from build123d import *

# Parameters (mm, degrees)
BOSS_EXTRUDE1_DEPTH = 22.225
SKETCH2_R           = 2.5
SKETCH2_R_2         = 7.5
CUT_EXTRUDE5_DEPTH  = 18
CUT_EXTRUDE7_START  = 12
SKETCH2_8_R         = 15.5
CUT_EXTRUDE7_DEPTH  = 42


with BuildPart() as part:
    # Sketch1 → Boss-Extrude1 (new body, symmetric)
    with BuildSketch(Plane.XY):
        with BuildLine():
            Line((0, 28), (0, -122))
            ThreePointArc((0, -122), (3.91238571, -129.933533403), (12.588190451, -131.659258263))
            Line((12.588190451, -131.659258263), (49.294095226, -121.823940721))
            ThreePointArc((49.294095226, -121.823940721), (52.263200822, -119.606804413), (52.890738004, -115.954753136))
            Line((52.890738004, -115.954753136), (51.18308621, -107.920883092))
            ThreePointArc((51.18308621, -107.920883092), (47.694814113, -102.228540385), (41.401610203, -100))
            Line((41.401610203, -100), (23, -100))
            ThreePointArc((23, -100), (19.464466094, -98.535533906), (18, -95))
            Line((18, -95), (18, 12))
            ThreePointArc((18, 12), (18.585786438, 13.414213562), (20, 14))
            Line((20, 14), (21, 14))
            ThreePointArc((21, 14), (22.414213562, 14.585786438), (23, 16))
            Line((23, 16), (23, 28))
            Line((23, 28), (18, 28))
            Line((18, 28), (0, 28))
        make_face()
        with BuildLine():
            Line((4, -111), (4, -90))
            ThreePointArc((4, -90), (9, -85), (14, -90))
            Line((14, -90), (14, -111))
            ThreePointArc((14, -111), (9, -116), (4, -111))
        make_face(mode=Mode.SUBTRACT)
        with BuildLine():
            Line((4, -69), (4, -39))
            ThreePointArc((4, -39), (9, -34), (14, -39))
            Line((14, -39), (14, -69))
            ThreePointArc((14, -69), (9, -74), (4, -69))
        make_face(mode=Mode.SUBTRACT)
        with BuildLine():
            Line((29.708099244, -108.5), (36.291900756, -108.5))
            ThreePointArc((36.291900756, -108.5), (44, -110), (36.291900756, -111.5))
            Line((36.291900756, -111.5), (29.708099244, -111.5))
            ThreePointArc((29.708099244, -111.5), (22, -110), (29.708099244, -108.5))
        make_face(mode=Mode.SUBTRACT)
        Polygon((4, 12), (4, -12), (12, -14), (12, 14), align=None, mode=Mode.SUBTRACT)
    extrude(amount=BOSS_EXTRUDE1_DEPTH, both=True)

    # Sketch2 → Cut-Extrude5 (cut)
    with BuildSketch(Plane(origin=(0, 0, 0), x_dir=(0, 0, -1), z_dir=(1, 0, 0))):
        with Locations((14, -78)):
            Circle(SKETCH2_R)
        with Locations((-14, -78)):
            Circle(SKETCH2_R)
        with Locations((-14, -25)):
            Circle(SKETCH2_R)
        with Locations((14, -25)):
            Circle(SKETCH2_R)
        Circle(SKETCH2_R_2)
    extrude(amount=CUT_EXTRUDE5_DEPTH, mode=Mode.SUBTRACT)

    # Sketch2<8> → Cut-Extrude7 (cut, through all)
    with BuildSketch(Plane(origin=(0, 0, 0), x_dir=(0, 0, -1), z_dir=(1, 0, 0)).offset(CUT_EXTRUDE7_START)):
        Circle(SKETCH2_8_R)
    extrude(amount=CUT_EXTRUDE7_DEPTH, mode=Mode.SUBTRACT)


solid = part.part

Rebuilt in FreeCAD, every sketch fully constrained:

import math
import FreeCAD as App
import Part
import Sketcher
Q = App.Units.Quantity


def add_polygon(sketch, points):
    """Adds a closed chain of lines whose ends are joined by coincident constraints."""
    first, n = sketch.GeometryCount, len(points)
    for a, b in zip(points, points[1:] + points[:1]):
        sketch.addGeometry(Part.LineSegment(App.Vector(*a, 0), App.Vector(*b, 0)), False)
    for i in range(n):
        sketch.addConstraint(Sketcher.Constraint("Coincident", first + i, 2, first + (i + 1) % n, 1))

doc = App.newDocument("Part")
body = doc.addObject("PartDesign::Body", "Body")

# Sketch on XY plane
sketch1 = body.newObject("Sketcher::SketchObject", "Sketch")
sketch1.AttachmentSupport = (doc.getObject("XY_Plane"), [""])
sketch1.MapMode = "FlatFace"
sketch1.addGeometry(Part.LineSegment(App.Vector(0, 28, 0), App.Vector(0, -122, 0)), False)  # 0
sketch1.addGeometry(Part.ArcOfCircle(Part.Circle(App.Vector(10, -122, 0), App.Vector(0, 0, 1), 10), math.radians(180), math.radians(285)), False)  # 1
sketch1.addGeometry(Part.LineSegment(App.Vector(12.6, -131.7, 0), App.Vector(49.3, -121.8, 0)), False)  # 2
sketch1.addGeometry(Part.ArcOfCircle(Part.Circle(App.Vector(48, -117, 0), App.Vector(0, 0, 1), 5), math.radians(-75), math.radians(12)), False)  # 3
sketch1.addGeometry(Part.LineSegment(App.Vector(52.9, -116, 0), App.Vector(51.2, -107.9, 0)), False)  # 4
sketch1.addGeometry(Part.ArcOfCircle(Part.Circle(App.Vector(41.4, -110, 0), App.Vector(0, 0, 1), 10), math.radians(12), math.radians(90)), False)  # 5
sketch1.addGeometry(Part.LineSegment(App.Vector(41.4, -100, 0), App.Vector(23, -100, 0)), False)  # 6
sketch1.addGeometry(Part.ArcOfCircle(Part.Circle(App.Vector(23, -95, 0), App.Vector(0, 0, 1), 5), math.radians(180), math.radians(270)), False)  # 7
sketch1.addGeometry(Part.LineSegment(App.Vector(18, -95, 0), App.Vector(18, 12, 0)), False)  # 8
sketch1.addGeometry(Part.ArcOfCircle(Part.Circle(App.Vector(20, 12, 0), App.Vector(0, 0, 1), 2), math.radians(90), math.radians(180)), False)  # 9
sketch1.addGeometry(Part.LineSegment(App.Vector(20, 14, 0), App.Vector(21, 14, 0)), False)  # 10
sketch1.addGeometry(Part.ArcOfCircle(Part.Circle(App.Vector(21, 16, 0), App.Vector(0, 0, 1), 2), math.radians(-90), math.radians(0)), False)  # 11
sketch1.addGeometry(Part.LineSegment(App.Vector(23, 16, 0), App.Vector(23, 28, 0)), False)  # 12
sketch1.addGeometry(Part.LineSegment(App.Vector(23, 28, 0), App.Vector(0, 28, 0)), False)  # 13
sketch1.addGeometry(Part.ArcOfCircle(Part.Circle(App.Vector(9, -111, 0), App.Vector(0, 0, 1), 5), math.radians(180), math.radians(360)), False)  # 14
sketch1.addGeometry(Part.LineSegment(App.Vector(4, -111, 0), App.Vector(4, -90, 0)), False)  # 15
sketch1.addGeometry(Part.ArcOfCircle(Part.Circle(App.Vector(9, -90, 0), App.Vector(0, 0, 1), 5), math.radians(0), math.radians(180)), False)  # 16
sketch1.addGeometry(Part.LineSegment(App.Vector(14, -90, 0), App.Vector(14, -111, 0)), False)  # 17
sketch1.addGeometry(Part.ArcOfCircle(Part.Circle(App.Vector(9, -69, 0), App.Vector(0, 0, 1), 5), math.radians(180), math.radians(360)), False)  # 18
sketch1.addGeometry(Part.LineSegment(App.Vector(4, -69, 0), App.Vector(4, -39, 0)), False)  # 19
sketch1.addGeometry(Part.ArcOfCircle(Part.Circle(App.Vector(9, -39, 0), App.Vector(0, 0, 1), 5), math.radians(0), math.radians(180)), False)  # 20
sketch1.addGeometry(Part.LineSegment(App.Vector(14, -39, 0), App.Vector(14, -69, 0)), False)  # 21
sketch1.addGeometry(Part.ArcOfCircle(Part.Circle(App.Vector(26, -110, 0), App.Vector(0, 0, 1), 4), math.radians(22), math.radians(338)), False)  # 22
sketch1.addGeometry(Part.LineSegment(App.Vector(29.7, -108.5, 0), App.Vector(36.3, -108.5, 0)), False)  # 23
sketch1.addGeometry(Part.ArcOfCircle(Part.Circle(App.Vector(40, -110, 0), App.Vector(0, 0, 1), 4), math.radians(-158), math.radians(158)), False)  # 24
sketch1.addGeometry(Part.LineSegment(App.Vector(36.3, -111.5, 0), App.Vector(29.7, -111.5, 0)), False)  # 25
add_polygon(sketch1, [(4, -12), (4, 12), (12, 14), (12, -14)])  # lines 26-29
sketch1.addConstraint([
    Sketcher.Constraint("Tangent", 0, 2, 1, 1),
    Sketcher.Constraint("Tangent", 1, 2, 2, 1),
    Sketcher.Constraint("Tangent", 2, 2, 3, 1),
    Sketcher.Constraint("Tangent", 3, 2, 4, 1),
    Sketcher.Constraint("Tangent", 4, 2, 5, 1),
    Sketcher.Constraint("Tangent", 5, 2, 6, 1),
    Sketcher.Constraint("Tangent", 6, 2, 7, 2),
    Sketcher.Constraint("Tangent", 7, 1, 8, 1),
    Sketcher.Constraint("Tangent", 8, 2, 9, 2),
    Sketcher.Constraint("Tangent", 9, 1, 10, 1),
    Sketcher.Constraint("Tangent", 10, 2, 11, 1),
    Sketcher.Constraint("Tangent", 11, 2, 12, 1),
    Sketcher.Constraint("Coincident", 12, 2, 13, 1),
    Sketcher.Constraint("Coincident", 13, 2, 0, 1),
    Sketcher.Constraint("Tangent", 14, 1, 15, 1),
    Sketcher.Constraint("Tangent", 15, 2, 16, 2),
    Sketcher.Constraint("Tangent", 16, 1, 17, 1),
    Sketcher.Constraint("Tangent", 17, 2, 14, 2),
    Sketcher.Constraint("Tangent", 18, 1, 19, 1),
    Sketcher.Constraint("Tangent", 19, 2, 20, 2),
    Sketcher.Constraint("Tangent", 20, 1, 21, 1),
    Sketcher.Constraint("Tangent", 21, 2, 18, 2),
    Sketcher.Constraint("Coincident", 22, 1, 23, 1),
    Sketcher.Constraint("Coincident", 23, 2, 24, 2),
    Sketcher.Constraint("Coincident", 24, 1, 25, 1),
    Sketcher.Constraint("Coincident", 25, 2, 22, 2),
    Sketcher.Constraint("Vertical", 0),
    Sketcher.Constraint("Horizontal", 6),
    Sketcher.Constraint("Vertical", 8),
    Sketcher.Constraint("Horizontal", 10),
    Sketcher.Constraint("Vertical", 12),
    Sketcher.Constraint("Horizontal", 13),
    Sketcher.Constraint("Vertical", 15),
    Sketcher.Constraint("Vertical", 17),
    Sketcher.Constraint("Vertical", 19),
    Sketcher.Constraint("Vertical", 21),
    Sketcher.Constraint("Horizontal", 23),
    Sketcher.Constraint("Horizontal", 25),
    Sketcher.Constraint("Vertical", 26),
    Sketcher.Constraint("Vertical", 28),
    Sketcher.Constraint("Equal", 1, 5),
    Sketcher.Constraint("Equal", 3, 7),
    Sketcher.Constraint("Equal", 9, 11),
    Sketcher.Constraint("Equal", 7, 14),
    Sketcher.Constraint("Equal", 16, 18),
    Sketcher.Constraint("Equal", 22, 24),
    Sketcher.Constraint("PointOnObject", 0, 2, -2),
    Sketcher.Constraint("Horizontal", 5, 3, 22, 3),
    Sketcher.Constraint("Horizontal", 22, 3, 24, 3),
    Sketcher.Constraint("Horizontal", 8, 2, 26, 2),
    Sketcher.Constraint("Horizontal", 10, 2, 27, 2),
    Sketcher.Constraint("Vertical", 16, 3, 18, 3),
    Sketcher.Constraint("Vertical", 6, 2, 11, 2),
    Sketcher.Constraint("Vertical", 23, 2, 24, 1),
    Sketcher.Constraint("Vertical", 19, 2, 26, 2),
    Sketcher.Constraint("Equal", 27, 29),
    Sketcher.Constraint("Radius", 1, 10.0),
    Sketcher.Constraint("Radius", 3, 5.0),
    Sketcher.Constraint("Radius", 9, 2.0),
    Sketcher.Constraint("Radius", 22, 4.0),
    Sketcher.Constraint("DistanceX", 13, 2, 13, 1, 23.0),
    Sketcher.Constraint("DistanceY", 0, 2, 0, 1, 150.0),
    Sketcher.Constraint("DistanceY", 8, 1, 8, 2, 107.0),
    Sketcher.Constraint("DistanceY", 12, 1, 12, 2, 12.0),
    Sketcher.Constraint("DistanceY", 15, 1, 15, 2, 21.0),
    Sketcher.Constraint("DistanceY", 19, 1, 19, 2, 30.0),
    Sketcher.Constraint("DistanceY", 26, 1, 26, 2, 24.0),
    Sketcher.Constraint("Angle", 2, Q("15 deg")),
    Sketcher.Constraint("Angle", 4, Q("102 deg")),
    Sketcher.Constraint("DistanceY", 1, 3, -1, 1, 122.0),
    Sketcher.Constraint("DistanceX", -1, 1, 3, 3, 48.0),
    Sketcher.Constraint("DistanceX", -1, 1, 14, 3, 9.0),
    Sketcher.Constraint("DistanceY", 14, 3, -1, 1, 111.0),
    Sketcher.Constraint("DistanceY", 18, 3, -1, 1, 69.0),
    Sketcher.Constraint("DistanceX", -1, 1, 22, 3, 26.0),
    Sketcher.Constraint("DistanceX", -1, 1, 24, 3, 40.0),
    Sketcher.Constraint("DistanceX", -1, 1, 27, 2, 12.0),
    Sketcher.Constraint("DistanceY", 24, 1, 23, 2, 3.0),
])
pad1 = body.newObject("PartDesign::Pad", "Pad")
pad1.Profile = sketch1
pad1.Length = 44.45
pad1.Midplane = True

# Sketch on YZ plane
sketch2 = body.newObject("Sketcher::SketchObject", "Sketch001")
sketch2.AttachmentSupport = (doc.getObject("YZ_Plane"), [""])
sketch2.MapMode = "FlatFace"
sketch2.addGeometry([
    Part.Circle(App.Vector(-78, -14, 0), App.Vector(0, 0, 1), 2.5),  # 0
    Part.Circle(App.Vector(-78, 14, 0), App.Vector(0, 0, 1), 2.5),  # 1
    Part.Circle(App.Vector(-25, 14, 0), App.Vector(0, 0, 1), 2.5),  # 2
    Part.Circle(App.Vector(-25, -14, 0), App.Vector(0, 0, 1), 2.5),  # 3
    Part.Circle(App.Vector(0, 0, 0), App.Vector(0, 0, 1), 7.5),  # 4
], False)
sketch2.addConstraint([
    Sketcher.Constraint("Coincident", 4, 3, -1, 1),
    Sketcher.Constraint("Equal", 0, 1),
    Sketcher.Constraint("Equal", 1, 2),
    Sketcher.Constraint("Equal", 2, 3),
    Sketcher.Constraint("Symmetric", 0, 3, 1, 3, -1),
    Sketcher.Constraint("Symmetric", 2, 3, 3, 3, -1),
    Sketcher.Constraint("Horizontal", 1, 3, 2, 3),
    Sketcher.Constraint("Diameter", 0, 5.0),
    Sketcher.Constraint("Diameter", 4, 15.0),
    Sketcher.Constraint("DistanceX", 0, 3, -1, 1, 78.0),
    Sketcher.Constraint("DistanceY", 0, 3, -1, 1, 14.0),
    Sketcher.Constraint("DistanceX", 2, 3, -1, 1, 25.0),
])
pocket1 = body.newObject("PartDesign::Pocket", "Pocket")
pocket1.Profile = sketch2
pocket1.Length = 18
pocket1.Reversed = True

# Sketch on YZ plane
sketch3 = body.newObject("Sketcher::SketchObject", "Sketch002")
sketch3.AttachmentSupport = (doc.getObject("YZ_Plane"), [""])
sketch3.MapMode = "FlatFace"
sketch3.AttachmentOffset = App.Placement(App.Vector(0, 0, 12), App.Rotation())
sketch3.addGeometry(Part.Circle(App.Vector(0, 0, 0), App.Vector(0, 0, 1), 16), False)
sketch3.addConstraint([
    Sketcher.Constraint("Coincident", 0, 3, -1, 1),
    Sketcher.Constraint("Diameter", 0, 31.0),
])
pocket2 = body.newObject("PartDesign::Pocket", "Pocket001")
pocket2.Profile = sketch3
pocket2.Type = "ThroughAll"
pocket2.Reversed = True

doc.recompute()
